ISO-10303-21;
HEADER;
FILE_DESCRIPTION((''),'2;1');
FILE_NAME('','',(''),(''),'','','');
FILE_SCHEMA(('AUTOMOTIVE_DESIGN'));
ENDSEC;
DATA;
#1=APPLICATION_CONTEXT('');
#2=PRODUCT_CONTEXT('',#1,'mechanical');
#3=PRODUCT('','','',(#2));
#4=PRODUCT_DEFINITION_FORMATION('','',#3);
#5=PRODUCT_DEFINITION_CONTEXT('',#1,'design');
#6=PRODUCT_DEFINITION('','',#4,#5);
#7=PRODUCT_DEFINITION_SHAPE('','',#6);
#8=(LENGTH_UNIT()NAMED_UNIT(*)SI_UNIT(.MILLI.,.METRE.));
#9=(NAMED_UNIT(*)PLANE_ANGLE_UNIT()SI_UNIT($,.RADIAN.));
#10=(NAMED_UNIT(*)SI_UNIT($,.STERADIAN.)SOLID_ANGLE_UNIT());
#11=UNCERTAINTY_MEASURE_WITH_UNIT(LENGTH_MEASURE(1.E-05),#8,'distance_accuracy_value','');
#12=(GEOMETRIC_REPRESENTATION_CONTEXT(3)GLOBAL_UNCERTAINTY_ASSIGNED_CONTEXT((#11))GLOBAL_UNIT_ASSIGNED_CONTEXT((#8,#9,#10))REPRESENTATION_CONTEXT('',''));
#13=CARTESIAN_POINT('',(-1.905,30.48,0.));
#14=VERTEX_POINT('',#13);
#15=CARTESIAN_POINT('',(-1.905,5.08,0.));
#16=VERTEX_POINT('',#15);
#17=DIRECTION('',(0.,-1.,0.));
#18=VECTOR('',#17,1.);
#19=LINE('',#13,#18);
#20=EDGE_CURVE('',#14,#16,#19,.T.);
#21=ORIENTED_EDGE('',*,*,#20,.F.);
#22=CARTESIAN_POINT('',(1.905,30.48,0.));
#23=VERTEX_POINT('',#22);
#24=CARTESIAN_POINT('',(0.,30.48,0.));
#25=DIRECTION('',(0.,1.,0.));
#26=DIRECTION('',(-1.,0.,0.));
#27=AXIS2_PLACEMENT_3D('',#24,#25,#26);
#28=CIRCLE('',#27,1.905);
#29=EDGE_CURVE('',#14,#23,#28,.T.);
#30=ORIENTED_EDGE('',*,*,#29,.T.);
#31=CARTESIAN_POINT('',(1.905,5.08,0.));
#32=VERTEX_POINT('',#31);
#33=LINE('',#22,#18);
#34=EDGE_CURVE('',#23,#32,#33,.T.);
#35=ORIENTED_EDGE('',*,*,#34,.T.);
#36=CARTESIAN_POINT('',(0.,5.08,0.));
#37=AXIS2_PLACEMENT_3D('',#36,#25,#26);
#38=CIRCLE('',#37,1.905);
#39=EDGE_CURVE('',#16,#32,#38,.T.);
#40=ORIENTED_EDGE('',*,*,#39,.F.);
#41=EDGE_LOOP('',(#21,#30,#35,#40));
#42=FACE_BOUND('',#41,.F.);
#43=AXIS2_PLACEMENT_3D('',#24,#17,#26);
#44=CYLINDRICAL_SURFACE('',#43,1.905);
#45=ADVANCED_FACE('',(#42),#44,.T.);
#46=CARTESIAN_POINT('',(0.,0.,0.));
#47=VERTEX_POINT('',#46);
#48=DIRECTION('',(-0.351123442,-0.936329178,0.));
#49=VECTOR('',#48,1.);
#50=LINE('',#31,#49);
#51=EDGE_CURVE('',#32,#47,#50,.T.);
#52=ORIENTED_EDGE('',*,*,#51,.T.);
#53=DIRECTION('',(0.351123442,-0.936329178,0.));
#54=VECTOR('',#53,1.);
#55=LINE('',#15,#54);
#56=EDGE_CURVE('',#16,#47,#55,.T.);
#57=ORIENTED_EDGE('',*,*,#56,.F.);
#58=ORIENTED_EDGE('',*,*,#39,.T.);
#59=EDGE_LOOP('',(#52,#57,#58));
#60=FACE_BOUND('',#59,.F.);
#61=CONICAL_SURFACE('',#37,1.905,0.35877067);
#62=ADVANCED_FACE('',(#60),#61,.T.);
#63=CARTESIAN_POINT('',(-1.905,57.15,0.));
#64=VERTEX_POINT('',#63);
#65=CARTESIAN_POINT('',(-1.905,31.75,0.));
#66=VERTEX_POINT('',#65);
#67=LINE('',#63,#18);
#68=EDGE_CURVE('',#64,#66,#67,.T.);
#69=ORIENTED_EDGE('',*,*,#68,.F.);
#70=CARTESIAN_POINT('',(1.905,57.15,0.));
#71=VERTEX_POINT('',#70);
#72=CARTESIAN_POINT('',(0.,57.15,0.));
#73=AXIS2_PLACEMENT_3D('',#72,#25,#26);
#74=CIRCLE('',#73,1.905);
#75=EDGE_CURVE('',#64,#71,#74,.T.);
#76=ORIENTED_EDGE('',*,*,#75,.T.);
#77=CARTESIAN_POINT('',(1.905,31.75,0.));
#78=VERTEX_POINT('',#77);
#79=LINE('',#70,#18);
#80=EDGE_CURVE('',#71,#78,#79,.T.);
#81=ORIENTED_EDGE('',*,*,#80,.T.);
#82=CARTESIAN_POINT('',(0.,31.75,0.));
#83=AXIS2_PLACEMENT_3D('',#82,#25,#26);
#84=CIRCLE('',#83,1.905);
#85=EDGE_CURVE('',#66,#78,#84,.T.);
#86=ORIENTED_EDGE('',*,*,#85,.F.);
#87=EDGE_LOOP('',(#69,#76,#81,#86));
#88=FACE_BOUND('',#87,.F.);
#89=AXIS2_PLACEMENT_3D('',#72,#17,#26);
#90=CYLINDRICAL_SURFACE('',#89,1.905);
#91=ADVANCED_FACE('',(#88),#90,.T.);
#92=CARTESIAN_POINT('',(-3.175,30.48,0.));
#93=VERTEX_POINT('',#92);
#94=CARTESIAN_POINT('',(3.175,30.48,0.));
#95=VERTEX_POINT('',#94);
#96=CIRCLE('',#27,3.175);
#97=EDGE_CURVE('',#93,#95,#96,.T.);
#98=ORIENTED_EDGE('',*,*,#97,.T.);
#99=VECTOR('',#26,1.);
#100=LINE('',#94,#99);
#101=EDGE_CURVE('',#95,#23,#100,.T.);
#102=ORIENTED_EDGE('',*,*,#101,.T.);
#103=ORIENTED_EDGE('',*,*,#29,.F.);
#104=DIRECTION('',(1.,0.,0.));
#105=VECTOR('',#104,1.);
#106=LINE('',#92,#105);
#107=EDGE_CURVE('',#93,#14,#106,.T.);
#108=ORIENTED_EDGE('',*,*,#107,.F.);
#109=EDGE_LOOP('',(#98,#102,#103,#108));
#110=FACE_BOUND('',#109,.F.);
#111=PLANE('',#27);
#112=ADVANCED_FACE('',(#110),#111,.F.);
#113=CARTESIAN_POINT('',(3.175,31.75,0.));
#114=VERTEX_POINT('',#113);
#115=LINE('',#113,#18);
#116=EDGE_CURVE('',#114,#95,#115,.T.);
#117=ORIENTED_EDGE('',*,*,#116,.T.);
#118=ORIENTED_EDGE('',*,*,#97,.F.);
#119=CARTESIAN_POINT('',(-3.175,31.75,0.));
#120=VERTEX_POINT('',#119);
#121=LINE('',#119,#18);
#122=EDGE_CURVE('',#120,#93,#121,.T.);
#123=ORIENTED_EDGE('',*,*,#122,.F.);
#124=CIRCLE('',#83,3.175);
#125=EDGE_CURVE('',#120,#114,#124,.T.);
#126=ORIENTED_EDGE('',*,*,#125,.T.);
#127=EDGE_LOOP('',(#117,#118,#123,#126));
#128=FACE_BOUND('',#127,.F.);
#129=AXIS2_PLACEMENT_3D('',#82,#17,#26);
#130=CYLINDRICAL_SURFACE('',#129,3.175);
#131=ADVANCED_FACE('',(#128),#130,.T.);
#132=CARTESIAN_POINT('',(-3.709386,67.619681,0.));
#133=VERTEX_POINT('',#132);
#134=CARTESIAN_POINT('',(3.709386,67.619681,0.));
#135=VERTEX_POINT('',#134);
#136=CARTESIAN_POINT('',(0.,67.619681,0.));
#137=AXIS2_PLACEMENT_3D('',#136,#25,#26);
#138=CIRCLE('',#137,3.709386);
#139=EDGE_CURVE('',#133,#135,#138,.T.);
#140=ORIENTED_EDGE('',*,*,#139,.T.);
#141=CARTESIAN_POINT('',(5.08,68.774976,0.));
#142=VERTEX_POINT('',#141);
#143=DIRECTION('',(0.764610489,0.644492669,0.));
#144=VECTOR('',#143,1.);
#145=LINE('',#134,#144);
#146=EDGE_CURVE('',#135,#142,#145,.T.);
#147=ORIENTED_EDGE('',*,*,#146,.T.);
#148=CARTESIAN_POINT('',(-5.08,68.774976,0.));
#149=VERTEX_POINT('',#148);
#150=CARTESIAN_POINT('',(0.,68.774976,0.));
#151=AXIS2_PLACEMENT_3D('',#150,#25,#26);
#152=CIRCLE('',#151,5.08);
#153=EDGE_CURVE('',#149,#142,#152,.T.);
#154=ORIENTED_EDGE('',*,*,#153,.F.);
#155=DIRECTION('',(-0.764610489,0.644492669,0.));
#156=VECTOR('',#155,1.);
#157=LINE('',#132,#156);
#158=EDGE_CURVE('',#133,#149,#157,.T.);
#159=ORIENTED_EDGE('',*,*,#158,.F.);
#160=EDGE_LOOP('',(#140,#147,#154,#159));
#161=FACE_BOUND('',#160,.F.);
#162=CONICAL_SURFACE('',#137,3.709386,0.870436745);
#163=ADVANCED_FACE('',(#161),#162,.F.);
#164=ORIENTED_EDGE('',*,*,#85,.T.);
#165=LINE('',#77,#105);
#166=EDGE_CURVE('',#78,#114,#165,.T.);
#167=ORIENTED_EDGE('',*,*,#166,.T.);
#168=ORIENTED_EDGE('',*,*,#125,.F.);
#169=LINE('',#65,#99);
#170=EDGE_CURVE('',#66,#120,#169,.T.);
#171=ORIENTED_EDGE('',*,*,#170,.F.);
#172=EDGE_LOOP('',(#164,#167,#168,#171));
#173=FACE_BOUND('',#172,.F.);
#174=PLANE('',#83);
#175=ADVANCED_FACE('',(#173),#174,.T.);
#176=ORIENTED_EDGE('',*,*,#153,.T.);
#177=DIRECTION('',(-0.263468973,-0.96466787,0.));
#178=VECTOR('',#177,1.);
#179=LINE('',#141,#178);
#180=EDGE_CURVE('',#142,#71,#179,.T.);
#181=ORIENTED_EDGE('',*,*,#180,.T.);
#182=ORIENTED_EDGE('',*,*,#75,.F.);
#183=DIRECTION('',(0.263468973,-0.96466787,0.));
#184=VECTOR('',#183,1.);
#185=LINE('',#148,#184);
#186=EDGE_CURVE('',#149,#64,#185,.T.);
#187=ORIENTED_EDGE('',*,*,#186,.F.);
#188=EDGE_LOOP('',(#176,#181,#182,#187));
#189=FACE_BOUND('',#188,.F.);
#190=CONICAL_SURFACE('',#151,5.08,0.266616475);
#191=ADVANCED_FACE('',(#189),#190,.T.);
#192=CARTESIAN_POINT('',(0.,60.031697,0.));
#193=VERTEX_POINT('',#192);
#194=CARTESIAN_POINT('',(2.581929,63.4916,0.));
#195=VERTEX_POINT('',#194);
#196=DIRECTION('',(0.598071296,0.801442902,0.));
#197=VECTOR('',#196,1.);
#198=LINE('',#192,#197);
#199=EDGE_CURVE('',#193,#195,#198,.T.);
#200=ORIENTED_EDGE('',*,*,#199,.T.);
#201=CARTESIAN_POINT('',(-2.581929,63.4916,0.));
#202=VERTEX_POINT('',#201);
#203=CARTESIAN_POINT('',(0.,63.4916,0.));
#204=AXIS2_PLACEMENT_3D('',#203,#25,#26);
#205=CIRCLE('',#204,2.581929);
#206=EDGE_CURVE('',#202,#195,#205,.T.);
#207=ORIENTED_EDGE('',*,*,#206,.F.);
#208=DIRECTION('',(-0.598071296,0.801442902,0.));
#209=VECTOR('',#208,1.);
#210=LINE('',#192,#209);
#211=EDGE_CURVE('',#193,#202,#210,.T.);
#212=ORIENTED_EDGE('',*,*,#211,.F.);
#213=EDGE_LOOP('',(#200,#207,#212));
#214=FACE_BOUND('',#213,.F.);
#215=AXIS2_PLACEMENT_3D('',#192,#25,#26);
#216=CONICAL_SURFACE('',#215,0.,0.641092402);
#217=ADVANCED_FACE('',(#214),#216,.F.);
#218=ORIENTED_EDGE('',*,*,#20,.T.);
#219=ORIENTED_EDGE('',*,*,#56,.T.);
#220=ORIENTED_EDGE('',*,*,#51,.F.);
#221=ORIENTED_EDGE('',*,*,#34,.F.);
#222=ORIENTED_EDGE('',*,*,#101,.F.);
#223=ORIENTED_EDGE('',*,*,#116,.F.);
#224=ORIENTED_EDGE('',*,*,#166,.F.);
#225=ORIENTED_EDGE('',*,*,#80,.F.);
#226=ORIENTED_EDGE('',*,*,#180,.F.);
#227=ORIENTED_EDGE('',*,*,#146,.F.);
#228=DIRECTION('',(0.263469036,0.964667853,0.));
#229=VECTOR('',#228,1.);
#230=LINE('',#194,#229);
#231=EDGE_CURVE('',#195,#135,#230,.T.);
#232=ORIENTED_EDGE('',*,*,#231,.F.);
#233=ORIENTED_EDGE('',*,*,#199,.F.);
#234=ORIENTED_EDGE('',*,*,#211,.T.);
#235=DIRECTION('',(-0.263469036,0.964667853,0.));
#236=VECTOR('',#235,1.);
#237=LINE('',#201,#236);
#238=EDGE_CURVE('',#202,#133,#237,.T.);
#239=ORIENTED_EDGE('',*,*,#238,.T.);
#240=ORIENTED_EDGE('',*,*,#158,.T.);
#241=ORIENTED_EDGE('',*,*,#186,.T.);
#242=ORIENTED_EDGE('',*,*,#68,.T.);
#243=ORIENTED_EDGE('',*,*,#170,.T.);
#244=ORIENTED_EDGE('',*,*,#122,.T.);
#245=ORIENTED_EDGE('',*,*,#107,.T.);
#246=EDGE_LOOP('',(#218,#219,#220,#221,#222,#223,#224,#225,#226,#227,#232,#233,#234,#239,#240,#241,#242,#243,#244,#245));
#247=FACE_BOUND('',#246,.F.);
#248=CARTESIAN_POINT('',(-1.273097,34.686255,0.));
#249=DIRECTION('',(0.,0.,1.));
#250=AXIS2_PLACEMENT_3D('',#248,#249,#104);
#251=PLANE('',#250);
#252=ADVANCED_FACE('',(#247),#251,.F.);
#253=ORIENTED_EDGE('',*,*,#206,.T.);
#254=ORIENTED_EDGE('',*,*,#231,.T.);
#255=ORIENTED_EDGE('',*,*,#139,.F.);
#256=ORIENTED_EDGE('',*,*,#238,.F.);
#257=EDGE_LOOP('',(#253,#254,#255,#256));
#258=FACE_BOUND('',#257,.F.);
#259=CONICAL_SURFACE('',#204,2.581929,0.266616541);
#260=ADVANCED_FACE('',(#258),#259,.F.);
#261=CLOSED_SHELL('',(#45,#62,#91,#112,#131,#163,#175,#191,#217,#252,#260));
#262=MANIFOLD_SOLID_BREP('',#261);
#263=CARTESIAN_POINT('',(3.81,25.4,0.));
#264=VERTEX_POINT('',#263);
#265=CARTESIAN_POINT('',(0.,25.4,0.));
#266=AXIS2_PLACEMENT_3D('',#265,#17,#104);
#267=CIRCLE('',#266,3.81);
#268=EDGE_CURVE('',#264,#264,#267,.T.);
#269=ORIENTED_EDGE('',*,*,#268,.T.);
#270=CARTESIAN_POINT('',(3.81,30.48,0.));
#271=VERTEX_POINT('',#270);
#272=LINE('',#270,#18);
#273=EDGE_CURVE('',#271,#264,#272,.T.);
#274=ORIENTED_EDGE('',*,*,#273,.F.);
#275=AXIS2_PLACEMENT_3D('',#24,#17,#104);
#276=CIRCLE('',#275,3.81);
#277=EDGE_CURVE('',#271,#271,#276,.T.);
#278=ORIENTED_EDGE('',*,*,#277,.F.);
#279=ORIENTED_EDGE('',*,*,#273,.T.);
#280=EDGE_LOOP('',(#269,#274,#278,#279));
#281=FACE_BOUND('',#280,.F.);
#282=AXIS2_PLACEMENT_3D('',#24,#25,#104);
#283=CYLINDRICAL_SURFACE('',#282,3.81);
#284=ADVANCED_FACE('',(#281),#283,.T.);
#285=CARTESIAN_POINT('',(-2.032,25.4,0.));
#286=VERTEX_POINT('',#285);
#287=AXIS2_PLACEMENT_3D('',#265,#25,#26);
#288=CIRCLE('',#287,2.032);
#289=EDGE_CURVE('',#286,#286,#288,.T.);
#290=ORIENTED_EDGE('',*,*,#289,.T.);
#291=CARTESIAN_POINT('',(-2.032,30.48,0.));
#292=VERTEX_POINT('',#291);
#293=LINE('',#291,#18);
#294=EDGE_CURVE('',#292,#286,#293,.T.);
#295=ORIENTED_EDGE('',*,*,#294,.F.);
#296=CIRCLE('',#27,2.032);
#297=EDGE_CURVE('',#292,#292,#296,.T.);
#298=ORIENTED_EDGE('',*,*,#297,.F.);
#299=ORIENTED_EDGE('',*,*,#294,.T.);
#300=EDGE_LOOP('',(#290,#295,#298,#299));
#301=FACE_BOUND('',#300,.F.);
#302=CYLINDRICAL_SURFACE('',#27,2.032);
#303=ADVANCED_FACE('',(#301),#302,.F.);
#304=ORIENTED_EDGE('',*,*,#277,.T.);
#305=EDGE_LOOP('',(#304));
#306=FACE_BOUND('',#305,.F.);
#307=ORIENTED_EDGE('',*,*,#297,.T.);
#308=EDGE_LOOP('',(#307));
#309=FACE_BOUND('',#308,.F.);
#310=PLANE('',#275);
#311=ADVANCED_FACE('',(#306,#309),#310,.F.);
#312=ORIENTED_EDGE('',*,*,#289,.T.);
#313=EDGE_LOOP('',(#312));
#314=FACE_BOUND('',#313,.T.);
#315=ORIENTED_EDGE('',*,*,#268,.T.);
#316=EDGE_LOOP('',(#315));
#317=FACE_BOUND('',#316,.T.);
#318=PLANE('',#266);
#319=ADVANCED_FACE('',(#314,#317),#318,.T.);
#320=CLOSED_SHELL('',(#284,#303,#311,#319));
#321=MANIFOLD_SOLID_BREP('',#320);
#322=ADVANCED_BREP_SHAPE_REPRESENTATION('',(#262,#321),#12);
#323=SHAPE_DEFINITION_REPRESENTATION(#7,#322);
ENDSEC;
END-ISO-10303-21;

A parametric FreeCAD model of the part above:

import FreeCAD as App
import Part
import Sketcher
from FreeCAD import Vector
Q = App.Units.Quantity

doc = App.newDocument("Part")
body = doc.addObject("PartDesign::Body", "Body")

# Sketch on XY plane
sketch1 = body.newObject("Sketcher::SketchObject", "Sketch")
sketch1.AttachmentSupport = (doc.getObject("XY_Plane"), [""])
sketch1.MapMode = "FlatFace"
sketch1.addGeometry([
    Part.LineSegment(Vector(-1.9, 5.1, 0), Vector(0, 0, 0)),  # 0
    Part.LineSegment(Vector(0, 0, 0), Vector(0, 60, 0)),  # 1
    Part.LineSegment(Vector(0, 60, 0), Vector(-2.6, 63.5, 0)),  # 2
    Part.LineSegment(Vector(-2.6, 63.5, 0), Vector(-3.7, 67.6, 0)),  # 3
    Part.LineSegment(Vector(-3.7, 67.6, 0), Vector(-5.1, 68.8, 0)),  # 4
    Part.LineSegment(Vector(-5.1, 68.8, 0), Vector(-1.9, 57.1, 0)),  # 5
    Part.LineSegment(Vector(-1.9, 57.1, 0), Vector(-1.9, 31.8, 0)),  # 6
    Part.LineSegment(Vector(-1.9, 31.8, 0), Vector(-3.2, 31.8, 0)),  # 7
    Part.LineSegment(Vector(-3.2, 31.8, 0), Vector(-3.2, 30.5, 0)),  # 8
    Part.LineSegment(Vector(-3.2, 30.5, 0), Vector(-1.9, 30.5, 0)),  # 9
    Part.LineSegment(Vector(-1.9, 30.5, 0), Vector(-1.9, 5.1, 0)),  # 10
], False)
sketch1.addConstraint([
    Sketcher.Constraint("Coincident", 0, 2, 1, 1),
    Sketcher.Constraint("Coincident", 1, 2, 2, 1),
    Sketcher.Constraint("Coincident", 2, 2, 3, 1),
    Sketcher.Constraint("Coincident", 3, 2, 4, 1),
    Sketcher.Constraint("Coincident", 4, 2, 5, 1),
    Sketcher.Constraint("Coincident", 5, 2, 6, 1),
    Sketcher.Constraint("Coincident", 6, 2, 7, 1),
    Sketcher.Constraint("Coincident", 7, 2, 8, 1),
    Sketcher.Constraint("Coincident", 8, 2, 9, 1),
    Sketcher.Constraint("Coincident", 9, 2, 10, 1),
    Sketcher.Constraint("Coincident", 10, 2, 0, 1),
    Sketcher.Constraint("Vertical", 1),
    Sketcher.Constraint("Vertical", 6),
    Sketcher.Constraint("Horizontal", 7),
    Sketcher.Constraint("Vertical", 8),
    Sketcher.Constraint("Horizontal", 9),
    Sketcher.Constraint("Vertical", 10),
    Sketcher.Constraint("Coincident", 0, 2, -1, 1),
    Sketcher.Constraint("Parallel", 3, 5),
    Sketcher.Constraint("Vertical", 6, 2, 9, 2),
    Sketcher.Constraint("Equal", 9, 8),
    Sketcher.Constraint("Equal", 6, 10),
    Sketcher.Constraint("DistanceY", 6, 2, 6, 1, Q("1 in")),
    Sketcher.Constraint("DistanceX", 7, 2, 7, 1, Q("0.05 in")),
    Sketcher.Constraint("DistanceX", 4, 2, -1, 1, Q("0.2 in")),
    Sketcher.Constraint("DistanceY", -1, 1, 8, 2, Q("1.2 in")),
    Sketcher.Constraint("DistanceX", 5, 2, -1, 1, Q("0.075 in")),
    Sketcher.Constraint("DistanceY", -1, 1, 2, 2, 63.4916),
    Sketcher.Constraint("DistanceY", 1, 1, 1, 2, 60.031697),
    Sketcher.Constraint("DistanceX", 2, 2, -1, 1, 2.581929),
    Sketcher.Constraint("DistanceY", -1, 1, 3, 2, 67.619681),
    Sketcher.Constraint("DistanceY", 1, 2, 4, 2, 8.743279),
])
revolution = body.newObject("PartDesign::Revolution", "Revolution")
revolution.Profile = sketch1
revolution.ReferenceAxis = (sketch1, ["V_Axis"])
revolution.Angle = 180
body2 = doc.addObject("PartDesign::Body", "Body001")

# Sketch on XZ plane
sketch2 = body2.newObject("Sketcher::SketchObject", "Sketch001")
sketch2.AttachmentSupport = (doc.getObject("XZ_Plane001"), [""])
sketch2.MapMode = "FlatFace"
sketch2.AttachmentOffset = App.Placement(Vector(0, 0, -1.2 * 25.4), App.Rotation())
sketch2.addGeometry([
    Part.Circle(Vector(0, 0, 0), Vector(0, 0, 1), 3.8),
    Part.Circle(Vector(0, 0, 0), Vector(0, 0, 1), 2),
], False)
sketch2.addConstraint([
    Sketcher.Constraint("Coincident", 0, 3, -1, 1),
    Sketcher.Constraint("Coincident", 1, 3, -1, 1),
    Sketcher.Constraint("Diameter", 0, Q("0.3 in")),
    Sketcher.Constraint("Diameter", 1, Q("0.16 in")),
])
pad1 = body2.newObject("PartDesign::Pad", "Pad")
pad1.Profile = sketch2
pad1.Length = Q("0.2 in")

doc.recompute()
